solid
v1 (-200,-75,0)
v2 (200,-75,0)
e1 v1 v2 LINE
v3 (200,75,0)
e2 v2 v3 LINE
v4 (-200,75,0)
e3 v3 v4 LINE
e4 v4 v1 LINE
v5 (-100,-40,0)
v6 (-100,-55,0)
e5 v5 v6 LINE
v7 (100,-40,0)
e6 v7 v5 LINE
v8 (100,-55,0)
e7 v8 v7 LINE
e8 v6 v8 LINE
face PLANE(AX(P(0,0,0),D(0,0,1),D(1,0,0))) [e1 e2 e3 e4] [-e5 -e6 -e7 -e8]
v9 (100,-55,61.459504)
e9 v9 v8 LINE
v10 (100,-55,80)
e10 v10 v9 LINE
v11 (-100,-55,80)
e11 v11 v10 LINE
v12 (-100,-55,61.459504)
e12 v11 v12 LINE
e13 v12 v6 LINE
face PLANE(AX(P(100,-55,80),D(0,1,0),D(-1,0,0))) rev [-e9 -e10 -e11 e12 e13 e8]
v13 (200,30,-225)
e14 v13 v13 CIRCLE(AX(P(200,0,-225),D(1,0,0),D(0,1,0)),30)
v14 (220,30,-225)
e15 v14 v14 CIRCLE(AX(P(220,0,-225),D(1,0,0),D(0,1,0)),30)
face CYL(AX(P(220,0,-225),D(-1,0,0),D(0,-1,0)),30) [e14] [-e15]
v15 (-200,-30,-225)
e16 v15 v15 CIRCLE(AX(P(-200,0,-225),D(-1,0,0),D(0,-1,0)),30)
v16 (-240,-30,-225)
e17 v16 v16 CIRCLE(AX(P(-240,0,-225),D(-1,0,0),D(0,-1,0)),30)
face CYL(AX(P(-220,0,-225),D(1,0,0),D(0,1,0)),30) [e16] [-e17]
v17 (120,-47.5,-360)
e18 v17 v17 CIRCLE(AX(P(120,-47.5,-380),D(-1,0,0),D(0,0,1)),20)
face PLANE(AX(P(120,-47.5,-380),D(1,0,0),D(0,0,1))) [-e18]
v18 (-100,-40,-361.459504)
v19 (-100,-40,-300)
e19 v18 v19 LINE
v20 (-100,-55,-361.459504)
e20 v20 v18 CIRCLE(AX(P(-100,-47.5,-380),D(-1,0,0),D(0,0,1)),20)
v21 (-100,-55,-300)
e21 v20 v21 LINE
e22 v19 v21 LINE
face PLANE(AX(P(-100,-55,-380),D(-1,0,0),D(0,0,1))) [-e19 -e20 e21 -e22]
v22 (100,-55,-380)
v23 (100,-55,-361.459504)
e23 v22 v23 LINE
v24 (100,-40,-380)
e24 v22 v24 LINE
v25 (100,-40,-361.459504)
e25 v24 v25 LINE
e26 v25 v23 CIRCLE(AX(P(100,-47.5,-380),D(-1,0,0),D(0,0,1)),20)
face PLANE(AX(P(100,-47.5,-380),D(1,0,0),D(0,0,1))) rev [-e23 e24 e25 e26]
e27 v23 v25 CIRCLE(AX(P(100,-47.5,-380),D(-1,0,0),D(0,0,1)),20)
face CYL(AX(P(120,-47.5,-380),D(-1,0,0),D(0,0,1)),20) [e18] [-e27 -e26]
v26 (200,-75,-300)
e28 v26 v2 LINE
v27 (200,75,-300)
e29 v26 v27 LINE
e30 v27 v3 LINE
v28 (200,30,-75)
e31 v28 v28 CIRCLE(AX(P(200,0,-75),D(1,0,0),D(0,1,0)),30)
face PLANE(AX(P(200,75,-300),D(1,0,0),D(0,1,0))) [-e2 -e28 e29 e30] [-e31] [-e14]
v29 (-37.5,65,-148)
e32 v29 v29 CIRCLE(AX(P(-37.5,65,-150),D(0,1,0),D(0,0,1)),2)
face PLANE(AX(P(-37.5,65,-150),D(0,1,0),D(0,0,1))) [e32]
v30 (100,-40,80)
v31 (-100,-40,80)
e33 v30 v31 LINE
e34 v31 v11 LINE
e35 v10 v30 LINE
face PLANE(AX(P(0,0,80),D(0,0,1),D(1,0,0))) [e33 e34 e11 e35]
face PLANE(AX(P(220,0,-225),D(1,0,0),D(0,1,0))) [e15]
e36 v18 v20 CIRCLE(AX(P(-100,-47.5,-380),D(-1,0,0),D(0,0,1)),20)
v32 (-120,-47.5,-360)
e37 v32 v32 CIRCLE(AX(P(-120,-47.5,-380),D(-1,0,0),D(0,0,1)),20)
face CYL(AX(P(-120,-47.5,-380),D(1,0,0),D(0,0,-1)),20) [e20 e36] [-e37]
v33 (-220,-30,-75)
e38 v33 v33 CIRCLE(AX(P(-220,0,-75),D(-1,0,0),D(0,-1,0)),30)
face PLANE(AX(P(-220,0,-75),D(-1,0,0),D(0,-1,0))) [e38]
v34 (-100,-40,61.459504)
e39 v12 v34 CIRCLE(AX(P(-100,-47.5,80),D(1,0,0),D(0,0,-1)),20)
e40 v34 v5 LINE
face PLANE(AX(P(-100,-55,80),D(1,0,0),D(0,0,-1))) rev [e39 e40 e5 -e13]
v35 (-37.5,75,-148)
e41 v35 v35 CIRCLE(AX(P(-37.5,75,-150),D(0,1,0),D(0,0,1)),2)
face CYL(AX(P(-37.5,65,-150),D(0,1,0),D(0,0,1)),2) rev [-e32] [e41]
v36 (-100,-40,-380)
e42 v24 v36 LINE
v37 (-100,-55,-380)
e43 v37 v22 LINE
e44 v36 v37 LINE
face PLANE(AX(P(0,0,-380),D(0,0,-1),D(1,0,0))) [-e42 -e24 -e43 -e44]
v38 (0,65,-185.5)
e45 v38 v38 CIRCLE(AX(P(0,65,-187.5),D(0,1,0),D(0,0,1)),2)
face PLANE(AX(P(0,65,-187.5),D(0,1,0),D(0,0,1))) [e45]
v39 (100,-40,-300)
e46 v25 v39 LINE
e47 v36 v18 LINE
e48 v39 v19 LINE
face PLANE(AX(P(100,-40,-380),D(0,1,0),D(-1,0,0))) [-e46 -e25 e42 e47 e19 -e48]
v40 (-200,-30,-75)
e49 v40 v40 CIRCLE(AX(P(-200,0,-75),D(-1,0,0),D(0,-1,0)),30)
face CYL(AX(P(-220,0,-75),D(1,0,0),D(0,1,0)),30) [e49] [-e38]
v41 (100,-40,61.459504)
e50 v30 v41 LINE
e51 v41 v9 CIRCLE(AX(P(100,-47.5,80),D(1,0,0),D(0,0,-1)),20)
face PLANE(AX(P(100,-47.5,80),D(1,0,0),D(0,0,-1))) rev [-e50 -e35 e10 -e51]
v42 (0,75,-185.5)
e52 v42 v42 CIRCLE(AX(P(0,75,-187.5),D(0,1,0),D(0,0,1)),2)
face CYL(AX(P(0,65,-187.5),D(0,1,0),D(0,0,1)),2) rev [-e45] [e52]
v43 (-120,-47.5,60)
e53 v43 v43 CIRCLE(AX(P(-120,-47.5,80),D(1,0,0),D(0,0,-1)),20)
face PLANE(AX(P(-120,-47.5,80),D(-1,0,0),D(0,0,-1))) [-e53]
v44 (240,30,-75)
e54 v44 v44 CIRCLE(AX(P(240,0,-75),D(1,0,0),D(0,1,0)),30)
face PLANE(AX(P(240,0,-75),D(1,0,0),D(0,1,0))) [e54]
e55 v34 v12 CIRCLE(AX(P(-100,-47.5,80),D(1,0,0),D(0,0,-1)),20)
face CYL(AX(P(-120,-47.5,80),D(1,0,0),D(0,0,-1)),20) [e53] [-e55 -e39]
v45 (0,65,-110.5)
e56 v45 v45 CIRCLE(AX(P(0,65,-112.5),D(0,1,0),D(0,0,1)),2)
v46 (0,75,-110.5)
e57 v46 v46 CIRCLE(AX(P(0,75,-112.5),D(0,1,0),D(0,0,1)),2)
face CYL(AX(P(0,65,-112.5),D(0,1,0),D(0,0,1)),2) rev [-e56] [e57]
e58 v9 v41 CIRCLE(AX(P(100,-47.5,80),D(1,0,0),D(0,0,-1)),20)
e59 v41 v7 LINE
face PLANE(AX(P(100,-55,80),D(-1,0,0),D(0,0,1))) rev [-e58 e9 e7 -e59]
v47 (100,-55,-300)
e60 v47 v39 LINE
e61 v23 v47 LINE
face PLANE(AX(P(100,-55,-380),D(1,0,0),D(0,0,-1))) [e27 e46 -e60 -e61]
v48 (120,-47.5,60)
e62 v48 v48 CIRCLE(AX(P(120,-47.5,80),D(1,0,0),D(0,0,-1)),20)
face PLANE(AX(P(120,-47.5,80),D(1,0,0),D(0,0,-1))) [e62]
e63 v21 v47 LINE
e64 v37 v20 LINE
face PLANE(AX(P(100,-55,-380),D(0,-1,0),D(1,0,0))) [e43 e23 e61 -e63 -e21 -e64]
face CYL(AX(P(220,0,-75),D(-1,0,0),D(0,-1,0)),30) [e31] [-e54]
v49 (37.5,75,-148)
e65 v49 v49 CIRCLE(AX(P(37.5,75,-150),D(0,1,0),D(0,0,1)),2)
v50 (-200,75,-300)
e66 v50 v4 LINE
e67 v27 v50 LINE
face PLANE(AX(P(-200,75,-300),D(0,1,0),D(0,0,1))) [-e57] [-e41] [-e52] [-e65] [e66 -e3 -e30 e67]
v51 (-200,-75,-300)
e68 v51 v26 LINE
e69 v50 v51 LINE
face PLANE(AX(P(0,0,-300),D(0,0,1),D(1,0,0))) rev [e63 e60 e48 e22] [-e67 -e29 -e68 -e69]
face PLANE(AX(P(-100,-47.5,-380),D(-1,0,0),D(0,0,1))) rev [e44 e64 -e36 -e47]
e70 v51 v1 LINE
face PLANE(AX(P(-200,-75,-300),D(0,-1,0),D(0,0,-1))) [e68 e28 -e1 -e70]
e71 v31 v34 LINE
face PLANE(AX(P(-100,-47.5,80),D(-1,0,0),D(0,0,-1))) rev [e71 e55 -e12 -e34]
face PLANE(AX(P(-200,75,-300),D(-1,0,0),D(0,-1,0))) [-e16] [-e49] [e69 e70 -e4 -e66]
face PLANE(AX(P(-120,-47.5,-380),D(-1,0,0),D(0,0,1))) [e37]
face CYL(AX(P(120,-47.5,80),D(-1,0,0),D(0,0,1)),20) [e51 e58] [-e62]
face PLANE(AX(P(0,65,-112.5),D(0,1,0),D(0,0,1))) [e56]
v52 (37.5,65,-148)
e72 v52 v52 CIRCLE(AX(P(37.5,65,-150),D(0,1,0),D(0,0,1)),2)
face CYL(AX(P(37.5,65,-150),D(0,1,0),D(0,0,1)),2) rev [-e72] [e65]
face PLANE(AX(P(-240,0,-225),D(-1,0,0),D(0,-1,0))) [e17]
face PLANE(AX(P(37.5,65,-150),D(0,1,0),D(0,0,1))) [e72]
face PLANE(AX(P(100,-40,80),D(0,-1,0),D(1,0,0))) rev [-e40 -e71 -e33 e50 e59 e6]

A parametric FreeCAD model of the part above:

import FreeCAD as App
import Part
import Sketcher

V = App.Vector


def add_polygon(sketch, points):
    """Adds a closed chain of lines whose ends are joined by coincident constraints."""
    first, n = sketch.GeometryCount, len(points)
    for a, b in zip(points, points[1:] + points[:1]):
        sketch.addGeometry(Part.LineSegment(App.Vector(*a, 0), App.Vector(*b, 0)), False)
    for i in range(n):
        sketch.addConstraint(Sketcher.Constraint("Coincident", first + i, 2, first + (i + 1) % n, 1))

doc = App.newDocument("Part")
body = doc.addObject("PartDesign::Body", "Body")

sketch1 = body.newObject("Sketcher::SketchObject", "Sketch")
sketch1.AttachmentSupport = (doc.getObject("XY_Plane"), [""])
sketch1.MapMode = "FlatFace"
add_polygon(sketch1, [(-200, 75), (-200, -75), (200, -75), (200, 75)])
sketch1.addConstraint([
    Sketcher.Constraint("Vertical", 0),
    Sketcher.Constraint("Horizontal", 1),
    Sketcher.Constraint("Vertical", 2),
    Sketcher.Constraint("Horizontal", 3),
    Sketcher.Constraint("Symmetric", 0, 2, 2, 2, -1, 1),
    Sketcher.Constraint("DistanceX", 1, 1, 1, 2, 400.0),
    Sketcher.Constraint("DistanceY", 0, 2, 0, 1, 150.0),
])
pad1 = body.newObject("PartDesign::Pad", "Pad")
pad1.Profile = sketch1
pad1.Length = 300
pad1.Reversed = True

sketch2 = body.newObject("Sketcher::SketchObject", "Sketch001")
sketch2.AttachmentSupport = (doc.getObject("YZ_Plane"), [""])
sketch2.MapMode = "FlatFace"
sketch2.AttachmentOffset = App.Placement(V(0, 0, 200), App.Rotation())
sketch2.addGeometry([
    Part.Circle(V(0, -75, 0), V(0, 0, 1), 30),
    Part.Circle(V(0, -225, 0), V(0, 0, 1), 30),
], False)
sketch2.addConstraint([
    Sketcher.Constraint("Equal", 0, 1),
    Sketcher.Constraint("PointOnObject", 0, 3, -2),
    Sketcher.Constraint("PointOnObject", 1, 3, -2),
    Sketcher.Constraint("Diameter", 0, 60.0),
    Sketcher.Constraint("DistanceY", 0, 3, -1, 1, 75.0),
    Sketcher.Constraint("DistanceY", 1, 3, -1, 1, 225.0),
])
pad2 = body.newObject("PartDesign::Pad", "Pad001")
pad2.Profile = sketch2
pad2.Length = 20

sketch3 = body.newObject("Sketcher::SketchObject", "Sketch002")
sketch3.AttachmentSupport = (doc.getObject("YZ_Plane"), [""])
sketch3.MapMode = "FlatFace"
sketch3.AttachmentOffset = App.Placement(V(0, 0, 220), App.Rotation())
sketch3.addGeometry(Part.Circle(V(0, -75, 0), V(0, 0, 1), 30), False)
sketch3.addConstraint([
    Sketcher.Constraint("PointOnObject", 0, 3, -2),
    Sketcher.Constraint("Diameter", 0, 60.0),
    Sketcher.Constraint("DistanceY", 0, 3, -1, 1, 75.0),
])
pad3 = body.newObject("PartDesign::Pad", "Pad002")
pad3.Profile = sketch3
pad3.Length = 20

sketch4 = body.newObject("Sketcher::SketchObject", "Sketch003")
sketch4.AttachmentSupport = (doc.getObject("YZ_Plane"), [""])
sketch4.MapMode = "FlatFace"
sketch4.AttachmentOffset = App.Placement(V(0, 0, -220), App.Rotation())
sketch4.addGeometry([
    Part.Circle(V(0, -225, 0), V(0, 0, 1), 30),
    Part.Circle(V(0, -75, 0), V(0, 0, 1), 30),
], False)
sketch4.addConstraint([
    Sketcher.Constraint("Equal", 0, 1),
    Sketcher.Constraint("PointOnObject", 0, 3, -2),
    Sketcher.Constraint("PointOnObject", 1, 3, -2),
    Sketcher.Constraint("Diameter", 0, 60.0),
    Sketcher.Constraint("DistanceY", 0, 3, -1, 1, 225.0),
    Sketcher.Constraint("DistanceY", 1, 3, -1, 1, 75.0),
])
pad4 = body.newObject("PartDesign::Pad", "Pad003")
pad4.Profile = sketch4
pad4.Length = 20

sketch5 = body.newObject("Sketcher::SketchObject", "Sketch004")
sketch5.AttachmentSupport = (doc.getObject("YZ_Plane"), [""])
sketch5.MapMode = "FlatFace"
sketch5.AttachmentOffset = App.Placement(V(0, 0, -240), App.Rotation())
sketch5.addGeometry(Part.Circle(V(0, -225, 0), V(0, 0, 1), 30), False)
sketch5.addConstraint([
    Sketcher.Constraint("PointOnObject", 0, 3, -2),
    Sketcher.Constraint("Diameter", 0, 60.0),
    Sketcher.Constraint("DistanceY", 0, 3, -1, 1, 225.0),
])
pad5 = body.newObject("PartDesign::Pad", "Pad004")
pad5.Profile = sketch5
pad5.Length = 20

sketch6 = body.newObject("Sketcher::SketchObject", "Sketch005")
sketch6.AttachmentSupport = (doc.getObject("XY_Plane"), [""])
sketch6.MapMode = "FlatFace"
add_polygon(sketch6, [(-100, -40), (-100, -55), (100, -55), (100, -40)])
sketch6.addConstraint([
    Sketcher.Constraint("Vertical", 0),
    Sketcher.Constraint("Horizontal", 1),
    Sketcher.Constraint("Vertical", 2),
    Sketcher.Constraint("Horizontal", 3),
    Sketcher.Constraint("DistanceX", 1, 1, 1, 2, 200.0),
    Sketcher.Constraint("DistanceY", 0, 2, 0, 1, 15.0),
    Sketcher.Constraint("DistanceX", 0, 2, -1, 1, 100.0),
    Sketcher.Constraint("DistanceY", 0, 2, -1, 1, 55.0),
])
pad6 = body.newObject("PartDesign::Pad", "Pad005")
pad6.Profile = sketch6
pad6.Length = 80
doc.recompute()

datumplane = body.newObject("PartDesign::Plane", "DatumPlane")
datumplane.AttachmentSupport = (doc.getObject("XY_Plane"), [""])
datumplane.MapMode = "FlatFace"
datumplane.AttachmentOffset = App.Placement(V(0, 0, -150), App.Rotation())
mirrored = body.newObject("PartDesign::Mirrored", "Mirrored")
mirrored.Originals = [pad6]
mirrored.MirrorPlane = (datumplane, [""])
body.Tip = mirrored

sketch7 = body.newObject("Sketcher::SketchObject", "Sketch006")
sketch7.AttachmentSupport = (doc.getObject("YZ_Plane"), [""])
sketch7.MapMode = "FlatFace"
sketch7.AttachmentOffset = App.Placement(V(0, 0, 100), App.Rotation())
sketch7.addGeometry(Part.Circle(V(-48, 80, 0), V(0, 0, 1), 20), False)
sketch7.addConstraint([
    Sketcher.Constraint("Diameter", 0, 40.0),
    Sketcher.Constraint("DistanceY", -1, 1, 0, 3, 80.0),
    Sketcher.Constraint("DistanceX", 0, 3, -1, 1, 47.5),
])
pad7 = body.newObject("PartDesign::Pad", "Pad006")
pad7.Profile = sketch7
pad7.Length = 20
doc.recompute()

datumplane2 = body.newObject("PartDesign::Plane", "DatumPlane001")
datumplane2.AttachmentSupport = (doc.getObject("XY_Plane"), [""])
datumplane2.MapMode = "FlatFace"
datumplane2.AttachmentOffset = App.Placement(V(0, 0, -150), App.Rotation())
mirrored2 = body.newObject("PartDesign::Mirrored", "Mirrored001")
mirrored2.Originals = [pad7]
mirrored2.MirrorPlane = (datumplane2, [""])
body.Tip = mirrored2
doc.recompute()

mirrored3 = body.newObject("PartDesign::Mirrored", "Mirrored002")
mirrored3.Originals = [pad7]
mirrored3.MirrorPlane = (doc.getObject("YZ_Plane"), [""])
body.Tip = mirrored3

sketch8 = body.newObject("Sketcher::SketchObject", "Sketch007")
sketch8.AttachmentSupport = (doc.getObject("YZ_Plane"), [""])
sketch8.MapMode = "FlatFace"
sketch8.AttachmentOffset = App.Placement(V(0, 0, -100), App.Rotation())
sketch8.addGeometry(Part.Circle(V(-48, -380, 0), V(0, 0, 1), 20), False)
sketch8.addConstraint([
    Sketcher.Constraint("Diameter", 0, 40.0),
    Sketcher.Constraint("DistanceY", 0, 3, -1, 1, 380.0),
    Sketcher.Constraint("DistanceX", 0, 3, -1, 1, 47.5),
])
pad8 = body.newObject("PartDesign::Pad", "Pad007")
pad8.Profile = sketch8
pad8.Length = 20
pad8.Reversed = True

sketch9 = body.newObject("Sketcher::SketchObject", "Sketch008")
sketch9.AttachmentSupport = (doc.getObject("XZ_Plane"), [""])
sketch9.MapMode = "FlatFace"
sketch9.AttachmentOffset = App.Placement(V(0, 0, -75), App.Rotation())
sketch9.addGeometry([
    Part.Circle(V(0, -187.5, 0), V(0, 0, 1), 2),
    Part.Circle(V(37.5, -150, 0), V(0, 0, 1), 2),
    Part.Circle(V(0, -112.5, 0), V(0, 0, 1), 2),
    Part.Circle(V(-37.5, -150, 0), V(0, 0, 1), 2),
], False)
sketch9.addConstraint([
    Sketcher.Constraint("Equal", 0, 1),
    Sketcher.Constraint("Equal", 1, 2),
    Sketcher.Constraint("Equal", 2, 3),
    Sketcher.Constraint("Symmetric", 1, 3, 3, 3, -2),
    Sketcher.Constraint("PointOnObject", 0, 3, -2),
    Sketcher.Constraint("PointOnObject", 2, 3, -2),
    Sketcher.Constraint("Diameter", 0, 4.0),
    Sketcher.Constraint("DistanceY", 1, 3, -1, 1, 150.0),
    Sketcher.Constraint("DistanceY", 0, 3, 2, 3, 75.0),
    Sketcher.Constraint("DistanceX", 3, 3, 1, 3, 75.0),
    Sketcher.Constraint("DistanceY", 0, 3, -1, 1, 187.5),
])
pocket1 = body.newObject("PartDesign::Pocket", "Pocket")
pocket1.Profile = sketch9
pocket1.Length = 10
pocket1.Reversed = True

doc.recompute()
